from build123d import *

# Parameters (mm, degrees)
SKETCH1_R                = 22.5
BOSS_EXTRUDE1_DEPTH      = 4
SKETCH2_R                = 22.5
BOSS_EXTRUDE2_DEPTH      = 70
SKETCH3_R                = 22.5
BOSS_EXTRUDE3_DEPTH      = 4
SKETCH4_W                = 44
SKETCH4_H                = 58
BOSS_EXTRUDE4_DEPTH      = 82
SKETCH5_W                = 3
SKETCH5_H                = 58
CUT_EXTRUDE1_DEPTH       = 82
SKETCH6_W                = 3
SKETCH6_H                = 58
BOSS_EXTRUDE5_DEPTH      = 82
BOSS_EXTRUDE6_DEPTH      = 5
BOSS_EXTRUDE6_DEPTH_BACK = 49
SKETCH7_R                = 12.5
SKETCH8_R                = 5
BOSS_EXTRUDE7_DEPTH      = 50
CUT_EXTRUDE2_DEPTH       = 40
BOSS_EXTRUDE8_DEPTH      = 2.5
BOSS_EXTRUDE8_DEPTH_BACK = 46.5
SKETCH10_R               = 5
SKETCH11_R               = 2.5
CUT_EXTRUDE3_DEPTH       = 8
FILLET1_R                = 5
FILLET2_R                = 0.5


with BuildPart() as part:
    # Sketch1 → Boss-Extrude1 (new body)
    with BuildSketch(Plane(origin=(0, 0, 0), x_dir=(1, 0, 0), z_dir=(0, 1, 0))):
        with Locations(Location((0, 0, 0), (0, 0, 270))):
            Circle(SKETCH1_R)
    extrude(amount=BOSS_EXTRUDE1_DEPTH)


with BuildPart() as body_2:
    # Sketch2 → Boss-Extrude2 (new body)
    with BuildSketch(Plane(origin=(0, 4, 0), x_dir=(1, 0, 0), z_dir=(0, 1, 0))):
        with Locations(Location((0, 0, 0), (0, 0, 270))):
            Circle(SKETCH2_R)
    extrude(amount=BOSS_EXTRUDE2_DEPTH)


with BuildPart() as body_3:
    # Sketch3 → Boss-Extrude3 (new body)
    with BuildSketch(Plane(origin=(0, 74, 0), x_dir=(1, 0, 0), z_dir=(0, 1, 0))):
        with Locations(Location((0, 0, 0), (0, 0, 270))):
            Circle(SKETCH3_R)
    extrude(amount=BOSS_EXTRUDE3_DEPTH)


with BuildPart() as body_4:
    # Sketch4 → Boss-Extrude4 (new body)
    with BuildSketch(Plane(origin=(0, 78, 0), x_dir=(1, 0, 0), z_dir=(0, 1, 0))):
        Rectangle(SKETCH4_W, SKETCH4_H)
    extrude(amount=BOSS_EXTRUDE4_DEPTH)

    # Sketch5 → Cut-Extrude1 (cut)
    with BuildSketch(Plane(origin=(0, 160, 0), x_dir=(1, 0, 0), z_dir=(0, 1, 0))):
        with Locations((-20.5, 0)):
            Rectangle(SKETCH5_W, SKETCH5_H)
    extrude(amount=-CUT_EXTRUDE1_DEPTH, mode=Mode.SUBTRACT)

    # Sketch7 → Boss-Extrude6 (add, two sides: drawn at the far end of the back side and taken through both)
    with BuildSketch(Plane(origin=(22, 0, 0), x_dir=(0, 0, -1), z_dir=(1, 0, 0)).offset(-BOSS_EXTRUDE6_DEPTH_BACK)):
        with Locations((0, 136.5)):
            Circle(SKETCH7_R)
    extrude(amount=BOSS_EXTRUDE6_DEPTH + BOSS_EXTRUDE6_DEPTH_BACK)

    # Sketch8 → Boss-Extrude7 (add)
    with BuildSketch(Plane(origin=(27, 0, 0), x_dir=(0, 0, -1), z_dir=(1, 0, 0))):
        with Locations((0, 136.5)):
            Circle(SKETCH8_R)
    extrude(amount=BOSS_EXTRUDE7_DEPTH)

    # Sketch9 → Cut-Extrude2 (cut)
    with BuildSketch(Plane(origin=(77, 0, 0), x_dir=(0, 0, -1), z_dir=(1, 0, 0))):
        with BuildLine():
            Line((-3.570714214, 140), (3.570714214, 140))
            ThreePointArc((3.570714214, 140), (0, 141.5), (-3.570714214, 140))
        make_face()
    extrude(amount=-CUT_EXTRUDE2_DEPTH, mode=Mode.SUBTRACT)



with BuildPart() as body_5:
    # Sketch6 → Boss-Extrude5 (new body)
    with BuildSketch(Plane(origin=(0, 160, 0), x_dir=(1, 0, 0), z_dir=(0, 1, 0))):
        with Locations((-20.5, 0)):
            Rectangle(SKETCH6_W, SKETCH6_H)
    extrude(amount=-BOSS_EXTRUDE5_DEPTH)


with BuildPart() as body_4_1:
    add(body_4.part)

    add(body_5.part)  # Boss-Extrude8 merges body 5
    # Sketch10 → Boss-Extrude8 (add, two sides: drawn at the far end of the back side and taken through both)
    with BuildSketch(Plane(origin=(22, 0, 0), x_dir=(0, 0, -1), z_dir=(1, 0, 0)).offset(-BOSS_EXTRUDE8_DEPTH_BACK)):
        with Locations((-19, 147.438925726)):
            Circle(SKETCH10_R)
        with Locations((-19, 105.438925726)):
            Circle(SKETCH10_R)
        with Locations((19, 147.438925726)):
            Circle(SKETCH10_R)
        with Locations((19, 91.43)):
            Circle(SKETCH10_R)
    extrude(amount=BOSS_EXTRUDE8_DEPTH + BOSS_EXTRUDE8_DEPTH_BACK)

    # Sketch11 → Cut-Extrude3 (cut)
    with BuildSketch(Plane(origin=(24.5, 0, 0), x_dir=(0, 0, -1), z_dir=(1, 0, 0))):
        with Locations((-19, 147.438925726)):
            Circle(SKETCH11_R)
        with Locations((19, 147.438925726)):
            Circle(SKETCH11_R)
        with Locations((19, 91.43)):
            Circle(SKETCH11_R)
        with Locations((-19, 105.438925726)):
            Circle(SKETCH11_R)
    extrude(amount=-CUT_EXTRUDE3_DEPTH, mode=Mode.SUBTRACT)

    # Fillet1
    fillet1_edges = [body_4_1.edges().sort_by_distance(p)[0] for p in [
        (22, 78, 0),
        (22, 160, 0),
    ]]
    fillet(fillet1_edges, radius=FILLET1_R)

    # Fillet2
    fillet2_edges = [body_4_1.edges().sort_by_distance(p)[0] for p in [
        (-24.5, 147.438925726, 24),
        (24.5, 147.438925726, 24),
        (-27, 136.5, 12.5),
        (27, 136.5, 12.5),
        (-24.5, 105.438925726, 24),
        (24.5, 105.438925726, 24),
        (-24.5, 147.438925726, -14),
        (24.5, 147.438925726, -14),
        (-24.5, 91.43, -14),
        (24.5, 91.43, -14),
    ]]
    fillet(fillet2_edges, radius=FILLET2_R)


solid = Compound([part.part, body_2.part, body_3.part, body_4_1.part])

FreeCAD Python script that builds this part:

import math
import FreeCAD as App
import Part
import Sketcher
from FreeCAD import Vector


def edges_at(feature, points):
    """Names of the edges that pass closest to the given points."""
    edges = feature.Shape.Edges
    near = lambda p: min(range(len(edges)), key=lambda i: edges[i].distToShape(Part.Vertex(*p))[0])
    return sorted({f"Edge{near(p) + 1}" for p in points})

doc = App.newDocument("Part")
body = doc.addObject("PartDesign::Body", "Body")

# Sketch on XZ plane
sketch1 = doc.addObject("Sketcher::SketchObject", "Sketch")
body.addObject(sketch1)
sketch1.AttachmentSupport = (doc.XZ_Plane, [""])
sketch1.MapMode = "FlatFace"
sketch1.addGeometry(Part.Circle(Vector(0, 0, 0), Vector(0, 0, 1), 22), False)
sketch1.addConstraint([
    Sketcher.Constraint("Coincident", 0, 3, -1, 1),
    Sketcher.Constraint("Diameter", 0, 45.0),
])
pad1 = doc.addObject("PartDesign::Pad", "Pad")
body.addObject(pad1)
pad1.Profile = sketch1
pad1.Length = 4
pad1.Reversed = True
body2 = doc.addObject("PartDesign::Body", "Body001")

# Sketch on XZ plane
sketch2 = doc.addObject("Sketcher::SketchObject", "Sketch001")
body2.addObject(sketch2)
sketch2.AttachmentSupport = (doc.getObject("XZ_Plane001"), [""])
sketch2.MapMode = "FlatFace"
sketch2.AttachmentOffset = App.Placement(Vector(0, 0, -4), App.Rotation())
sketch2.addGeometry(Part.Circle(Vector(0, 0, 0), Vector(0, 0, 1), 22), False)
sketch2.addConstraint([
    Sketcher.Constraint("Coincident", 0, 3, -1, 1),
    Sketcher.Constraint("Diameter", 0, 45.0),
])
pad2 = doc.addObject("PartDesign::Pad", "Pad001")
body2.addObject(pad2)
pad2.Profile = sketch2
pad2.Length = 70
pad2.Reversed = True
body3 = doc.addObject("PartDesign::Body", "Body002")

# Sketch on XZ plane
sketch3 = doc.addObject("Sketcher::SketchObject", "Sketch002")
body3.addObject(sketch3)
sketch3.AttachmentSupport = (doc.getObject("XZ_Plane002"), [""])
sketch3.MapMode = "FlatFace"
sketch3.AttachmentOffset = App.Placement(Vector(0, 0, -74), App.Rotation())
sketch3.addGeometry(Part.Circle(Vector(0, 0, 0), Vector(0, 0, 1), 22), False)
sketch3.addConstraint([
    Sketcher.Constraint("Coincident", 0, 3, -1, 1),
    Sketcher.Constraint("Diameter", 0, 45.0),
])
pad3 = doc.addObject("PartDesign::Pad", "Pad002")
body3.addObject(pad3)
pad3.Profile = sketch3
pad3.Length = 4
pad3.Reversed = True
body4 = doc.addObject("PartDesign::Body", "Body003")

# Sketch on XZ plane
sketch4 = doc.addObject("Sketcher::SketchObject", "Sketch003")
body4.addObject(sketch4)
sketch4.AttachmentSupport = (doc.getObject("XZ_Plane003"), [""])
sketch4.MapMode = "FlatFace"
sketch4.AttachmentOffset = App.Placement(Vector(0, 0, -78), App.Rotation())
sketch4.addGeometry([
    Part.LineSegment(Vector(-22, -29, 0), Vector(-22, 29, 0)),
    Part.LineSegment(Vector(-22, 29, 0), Vector(22, 29, 0)),
    Part.LineSegment(Vector(22, 29, 0), Vector(22, -29, 0)),
    Part.LineSegment(Vector(22, -29, 0), Vector(-22, -29, 0)),
], False)
sketch4.addConstraint([
    Sketcher.Constraint("Coincident", 0, 2, 1, 1),
    Sketcher.Constraint("Coincident", 1, 2, 2, 1),
    Sketcher.Constraint("Coincident", 2, 2, 3, 1),
    Sketcher.Constraint("Coincident", 3, 2, 0, 1),
    Sketcher.Constraint("Vertical", 0),
    Sketcher.Constraint("Horizontal", 1),
    Sketcher.Constraint("Vertical", 2),
    Sketcher.Constraint("Horizontal", 3),
    Sketcher.Constraint("Symmetric", 0, 2, 2, 2, -1, 1),
    Sketcher.Constraint("DistanceX", 1, 1, 1, 2, 44.0),
    Sketcher.Constraint("DistanceY", 0, 1, 0, 2, 58.0),
])
pad4 = doc.addObject("PartDesign::Pad", "Pad003")
body4.addObject(pad4)
pad4.Profile = sketch4
pad4.Length = 82
pad4.Reversed = True

# Sketch on XZ plane
sketch5 = doc.addObject("Sketcher::SketchObject", "Sketch004")
body4.addObject(sketch5)
sketch5.AttachmentSupport = (doc.getObject("XZ_Plane003"), [""])
sketch5.MapMode = "FlatFace"
sketch5.AttachmentOffset = App.Placement(Vector(0, 0, -160), App.Rotation())
sketch5.addGeometry([
    Part.LineSegment(Vector(-22, -29, 0), Vector(-22, 29, 0)),
    Part.LineSegment(Vector(-22, 29, 0), Vector(-19, 29, 0)),
    Part.LineSegment(Vector(-19, 29, 0), Vector(-19, -29, 0)),
    Part.LineSegment(Vector(-19, -29, 0), Vector(-22, -29, 0)),
], False)
sketch5.addConstraint([
    Sketcher.Constraint("Coincident", 0, 2, 1, 1),
    Sketcher.Constraint("Coincident", 1, 2, 2, 1),
    Sketcher.Constraint("Coincident", 2, 2, 3, 1),
    Sketcher.Constraint("Coincident", 3, 2, 0, 1),
    Sketcher.Constraint("Vertical", 0),
    Sketcher.Constraint("Horizontal", 1),
    Sketcher.Constraint("Vertical", 2),
    Sketcher.Constraint("Horizontal", 3),
    Sketcher.Constraint("DistanceX", 1, 1, 1, 2, 3.0),
    Sketcher.Constraint("DistanceY", 0, 1, 0, 2, 58.0),
    Sketcher.Constraint("DistanceX", 0, 2, -1, 1, 22.0),
    Sketcher.Constraint("DistanceY", -1, 1, 0, 2, 29.0),
])
pocket1 = doc.addObject("PartDesign::Pocket", "Pocket")
body4.addObject(pocket1)
pocket1.Profile = sketch5
pocket1.Length = 82
pocket1.Reversed = True

# Sketch on YZ plane
sketch6 = doc.addObject("Sketcher::SketchObject", "Sketch005")
body4.addObject(sketch6)
sketch6.AttachmentSupport = (doc.getObject("YZ_Plane003"), [""])
sketch6.MapMode = "FlatFace"
sketch6.AttachmentOffset = App.Placement(Vector(0, 0, 22), App.Rotation())
sketch6.addGeometry(Part.Circle(Vector(136, 0, 0), Vector(0, 0, 1), 12), False)
sketch6.addConstraint([
    Sketcher.Constraint("PointOnObject", 0, 3, -1),
    Sketcher.Constraint("Diameter", 0, 25.0),
    Sketcher.Constraint("DistanceX", -1, 1, 0, 3, 136.5),
])
pad5 = doc.addObject("PartDesign::Pad", "Pad004")
body4.addObject(pad5)
pad5.Profile = sketch6
pad5.Type = "TwoLengths"
pad5.Length = 5
pad5.Length2 = 49

# Sketch on YZ plane
sketch7 = doc.addObject("Sketcher::SketchObject", "Sketch006")
body4.addObject(sketch7)
sketch7.AttachmentSupport = (doc.getObject("YZ_Plane003"), [""])
sketch7.MapMode = "FlatFace"
sketch7.AttachmentOffset = App.Placement(Vector(0, 0, 27), App.Rotation())
sketch7.addGeometry(Part.Circle(Vector(136, 0, 0), Vector(0, 0, 1), 5), False)
sketch7.addConstraint([
    Sketcher.Constraint("PointOnObject", 0, 3, -1),
    Sketcher.Constraint("Diameter", 0, 10.0),
    Sketcher.Constraint("DistanceX", -1, 1, 0, 3, 136.5),
])
pad6 = doc.addObject("PartDesign::Pad", "Pad005")
body4.addObject(pad6)
pad6.Profile = sketch7
pad6.Length = 50

# Sketch on YZ plane
sketch8 = doc.addObject("Sketcher::SketchObject", "Sketch007")
body4.addObject(sketch8)
sketch8.AttachmentSupport = (doc.getObject("YZ_Plane003"), [""])
sketch8.MapMode = "FlatFace"
sketch8.AttachmentOffset = App.Placement(Vector(0, 0, 77), App.Rotation())
sketch8.addGeometry([
    Part.LineSegment(Vector(140, 3.6, 0), Vector(140, -3.6, 0)),
    Part.ArcOfCircle(Part.Circle(Vector(136.5, 0, 0), Vector(0, 0, 1), 5), math.radians(-46), math.radians(46)),
], False)
sketch8.addConstraint([
    Sketcher.Constraint("Coincident", 0, 1, 1, 2),
    Sketcher.Constraint("Coincident", 1, 1, 0, 2),
    Sketcher.Constraint("Vertical", 0),
    Sketcher.Constraint("PointOnObject", 1, 3, -1),
    Sketcher.Constraint("Radius", 1, 5.0),
    Sketcher.Constraint("DistanceX", -1, 1, 0, 1, 140.0),
    Sketcher.Constraint("DistanceX", -1, 1, 1, 3, 136.5),
])
pocket2 = doc.addObject("PartDesign::Pocket", "Pocket001")
body4.addObject(pocket2)
pocket2.Profile = sketch8
pocket2.Length = 40
body5 = doc.addObject("PartDesign::Body", "Body004")

# Sketch on XZ plane
sketch9 = doc.addObject("Sketcher::SketchObject", "Sketch008")
body5.addObject(sketch9)
sketch9.AttachmentSupport = (doc.getObject("XZ_Plane004"), [""])
sketch9.MapMode = "FlatFace"
sketch9.AttachmentOffset = App.Placement(Vector(0, 0, -160), App.Rotation())
sketch9.addGeometry([
    Part.LineSegment(Vector(-22, -29, 0), Vector(-22, 29, 0)),
    Part.LineSegment(Vector(-22, 29, 0), Vector(-19, 29, 0)),
    Part.LineSegment(Vector(-19, 29, 0), Vector(-19, -29, 0)),
    Part.LineSegment(Vector(-19, -29, 0), Vector(-22, -29, 0)),
], False)
sketch9.addConstraint([
    Sketcher.Constraint("Coincident", 0, 2, 1, 1),
    Sketcher.Constraint("Coincident", 1, 2, 2, 1),
    Sketcher.Constraint("Coincident", 2, 2, 3, 1),
    Sketcher.Constraint("Coincident", 3, 2, 0, 1),
    Sketcher.Constraint("Vertical", 0),
    Sketcher.Constraint("Horizontal", 1),
    Sketcher.Constraint("Vertical", 2),
    Sketcher.Constraint("Horizontal", 3),
    Sketcher.Constraint("DistanceX", 1, 1, 1, 2, 3.0),
    Sketcher.Constraint("DistanceY", 0, 1, 0, 2, 58.0),
    Sketcher.Constraint("DistanceX", 0, 2, -1, 1, 22.0),
    Sketcher.Constraint("DistanceY", -1, 1, 0, 2, 29.0),
])
pad7 = doc.addObject("PartDesign::Pad", "Pad006")
body5.addObject(pad7)
pad7.Profile = sketch9
pad7.Length = 82
doc.recompute()

boolean = doc.addObject("PartDesign::Boolean", "Boolean")
body4.addObject(boolean)
boolean.Type = "Fuse"
boolean.addObjects([body5])

# Sketch on YZ plane
sketch10 = doc.addObject("Sketcher::SketchObject", "Sketch009")
body4.addObject(sketch10)
sketch10.AttachmentSupport = (doc.getObject("YZ_Plane003"), [""])
sketch10.MapMode = "FlatFace"
sketch10.AttachmentOffset = App.Placement(Vector(0, 0, 22), App.Rotation())
sketch10.addGeometry([
    Part.Circle(Vector(147, 19, 0), Vector(0, 0, 1), 5),
    Part.Circle(Vector(105, 19, 0), Vector(0, 0, 1), 5),
    Part.Circle(Vector(147, -19, 0), Vector(0, 0, 1), 5),
    Part.Circle(Vector(91, -19, 0), Vector(0, 0, 1), 5),
], False)
sketch10.addConstraint([
    Sketcher.Constraint("Equal", 0, 1),
    Sketcher.Constraint("Equal", 1, 2),
    Sketcher.Constraint("Equal", 2, 3),
    Sketcher.Constraint("Symmetric", 0, 3, 2, 3, -1),
    Sketcher.Constraint("Horizontal", 0, 3, 1, 3),
    Sketcher.Constraint("Horizontal", 2, 3, 3, 3),
    Sketcher.Constraint("Diameter", 0, 10.0),
    Sketcher.Constraint("DistanceY", -1, 1, 0, 3, 19.0),
    Sketcher.Constraint("DistanceX", 1, 3, 0, 3, 42.0),
    Sketcher.Constraint("DistanceX", -1, 1, 3, 3, 91.43),
    Sketcher.Constraint("DistanceX", -1, 1, 0, 3, 147.438926),
])
pad8 = doc.addObject("PartDesign::Pad", "Pad007")
body4.addObject(pad8)
pad8.Profile = sketch10
pad8.Type = "TwoLengths"
pad8.Length = 2.5
pad8.Length2 = 46.5

# Sketch on YZ plane
sketch11 = doc.addObject("Sketcher::SketchObject", "Sketch010")
body4.addObject(sketch11)
sketch11.AttachmentSupport = (doc.getObject("YZ_Plane003"), [""])
sketch11.MapMode = "FlatFace"
sketch11.AttachmentOffset = App.Placement(Vector(0, 0, 24.5), App.Rotation())
sketch11.addGeometry([
    Part.Circle(Vector(147.4, 19, 0), Vector(0, 0, 1), 2.5),
    Part.Circle(Vector(147.4, -19, 0), Vector(0, 0, 1), 2.5),
    Part.Circle(Vector(91.4, -19, 0), Vector(0, 0, 1), 2.5),
    Part.Circle(Vector(105.4, 19, 0), Vector(0, 0, 1), 2.5),
], False)
sketch11.addConstraint([
    Sketcher.Constraint("Equal", 0, 1),
    Sketcher.Constraint("Equal", 1, 2),
    Sketcher.Constraint("Equal", 2, 3),
    Sketcher.Constraint("Symmetric", 0, 3, 1, 3, -1),
    Sketcher.Constraint("Horizontal", 1, 3, 2, 3),
    Sketcher.Constraint("Horizontal", 0, 3, 3, 3),
    Sketcher.Constraint("Diameter", 0, 5.0),
    Sketcher.Constraint("DistanceY", -1, 1, 0, 3, 19.0),
    Sketcher.Constraint("DistanceX", 3, 3, 0, 3, 42.0),
    Sketcher.Constraint("DistanceX", -1, 1, 2, 3, 91.43),
    Sketcher.Constraint("DistanceX", -1, 1, 0, 3, 147.438926),
])
pocket3 = doc.addObject("PartDesign::Pocket", "Pocket002")
body4.addObject(pocket3)
pocket3.Profile = sketch11
pocket3.Length = 8
doc.recompute()

fillet = doc.addObject("PartDesign::Fillet", "Fillet")
body4.addObject(fillet)
fillet.Base = (pocket3, edges_at(pocket3, [(22, 78, 0), (22, 160, 0)]))
fillet.Radius = 5
doc.recompute()

fillet2 = doc.addObject("PartDesign::Fillet", "Fillet001")
body4.addObject(fillet2)
fillet2.Base = (fillet, edges_at(fillet, [
    (-24.5, 147.439, 24),
    (24.5, 147.439, 24),
    (-27, 136.5, 12.5),
    (27, 136.5, 12.5),
    (-24.5, 105.439, 24),
    (24.5, 105.439, 24),
    (-24.5, 147.439, -14),
    (24.5, 147.439, -14),
    (-24.5, 91.43, -14),
    (24.5, 91.43, -14),
]))
fillet2.Radius = 0.5

doc.recompute()
